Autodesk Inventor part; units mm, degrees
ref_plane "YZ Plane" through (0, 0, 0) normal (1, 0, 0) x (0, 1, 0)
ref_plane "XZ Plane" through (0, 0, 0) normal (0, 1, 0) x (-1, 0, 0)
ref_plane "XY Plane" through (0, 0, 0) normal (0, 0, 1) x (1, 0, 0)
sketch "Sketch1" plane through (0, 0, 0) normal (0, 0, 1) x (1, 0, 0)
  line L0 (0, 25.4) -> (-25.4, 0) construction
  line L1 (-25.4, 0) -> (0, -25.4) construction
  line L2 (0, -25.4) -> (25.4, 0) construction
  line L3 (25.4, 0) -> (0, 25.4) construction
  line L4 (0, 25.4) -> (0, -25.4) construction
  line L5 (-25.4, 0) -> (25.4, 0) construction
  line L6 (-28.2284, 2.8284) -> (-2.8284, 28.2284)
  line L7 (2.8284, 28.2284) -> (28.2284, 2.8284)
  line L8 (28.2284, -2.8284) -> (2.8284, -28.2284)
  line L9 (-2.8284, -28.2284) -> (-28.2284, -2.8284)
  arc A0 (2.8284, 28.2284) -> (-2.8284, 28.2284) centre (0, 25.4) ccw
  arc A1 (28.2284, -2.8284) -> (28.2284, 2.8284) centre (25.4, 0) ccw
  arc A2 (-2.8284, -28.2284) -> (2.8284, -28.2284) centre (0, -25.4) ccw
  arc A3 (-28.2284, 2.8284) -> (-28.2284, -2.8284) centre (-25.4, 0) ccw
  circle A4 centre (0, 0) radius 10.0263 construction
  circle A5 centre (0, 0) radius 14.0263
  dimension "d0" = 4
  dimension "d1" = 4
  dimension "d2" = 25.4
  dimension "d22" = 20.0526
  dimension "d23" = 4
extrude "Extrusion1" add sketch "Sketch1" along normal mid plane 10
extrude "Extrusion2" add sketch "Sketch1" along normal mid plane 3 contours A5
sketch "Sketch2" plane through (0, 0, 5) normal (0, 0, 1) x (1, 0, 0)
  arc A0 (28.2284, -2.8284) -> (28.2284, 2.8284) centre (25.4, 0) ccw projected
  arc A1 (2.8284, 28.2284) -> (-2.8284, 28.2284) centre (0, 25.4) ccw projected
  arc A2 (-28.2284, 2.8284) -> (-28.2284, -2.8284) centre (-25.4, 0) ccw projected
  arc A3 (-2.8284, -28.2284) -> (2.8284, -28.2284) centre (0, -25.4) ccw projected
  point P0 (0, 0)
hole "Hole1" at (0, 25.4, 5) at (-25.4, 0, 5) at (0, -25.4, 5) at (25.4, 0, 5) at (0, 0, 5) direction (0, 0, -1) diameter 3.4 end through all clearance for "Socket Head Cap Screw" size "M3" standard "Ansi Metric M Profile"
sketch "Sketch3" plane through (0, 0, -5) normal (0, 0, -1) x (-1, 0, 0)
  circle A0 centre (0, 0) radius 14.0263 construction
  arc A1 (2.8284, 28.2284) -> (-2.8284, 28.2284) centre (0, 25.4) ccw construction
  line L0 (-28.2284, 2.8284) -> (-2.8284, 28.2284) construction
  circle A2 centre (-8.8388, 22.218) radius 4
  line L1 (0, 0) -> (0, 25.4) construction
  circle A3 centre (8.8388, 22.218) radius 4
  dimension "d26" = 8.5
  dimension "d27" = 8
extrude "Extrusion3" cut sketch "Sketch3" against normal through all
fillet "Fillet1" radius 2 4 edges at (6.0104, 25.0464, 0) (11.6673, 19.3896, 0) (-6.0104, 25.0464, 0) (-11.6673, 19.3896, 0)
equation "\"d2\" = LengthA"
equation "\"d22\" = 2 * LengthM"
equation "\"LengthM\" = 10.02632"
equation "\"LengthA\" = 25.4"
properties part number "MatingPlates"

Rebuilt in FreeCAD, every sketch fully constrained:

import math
import FreeCAD as App
import Part
import Sketcher
from FreeCAD import Vector


def edges_at(feature, points):
    """Names of the edges that pass closest to the given points."""
    edges = feature.Shape.Edges
    near = lambda p: min(range(len(edges)), key=lambda i: edges[i].distToShape(Part.Vertex(*p))[0])
    return sorted({f"Edge{near(p) + 1}" for p in points})

doc = App.newDocument("Part")
body = doc.addObject("PartDesign::Body", "Body")

sketch1 = body.newObject("Sketcher::SketchObject", "Sketch")
sketch1.AttachmentSupport = (doc.getObject("XY_Plane"), [""])
sketch1.MapMode = "FlatFace"
sketch1.addGeometry(Part.LineSegment(Vector(-2.8, 28.2, 0), Vector(-28.2, 2.8, 0)), False)
sketch1.addGeometry(Part.ArcOfCircle(Part.Circle(Vector(-25.4, 0, 0), Vector(0, 0, 1), 4), math.radians(135), math.radians(225)), False)
sketch1.addGeometry(Part.LineSegment(Vector(-28.2, -2.8, 0), Vector(-2.8, -28.2, 0)), False)
sketch1.addGeometry(Part.ArcOfCircle(Part.Circle(Vector(0, -25.4, 0), Vector(0, 0, 1), 4), math.radians(-135), math.radians(-45)), False)
sketch1.addGeometry(Part.LineSegment(Vector(2.8, -28.2, 0), Vector(28.2, -2.8, 0)), False)
sketch1.addGeometry(Part.ArcOfCircle(Part.Circle(Vector(25.4, 0, 0), Vector(0, 0, 1), 4), math.radians(-45), math.radians(45)), False)
sketch1.addGeometry(Part.LineSegment(Vector(28.2, 2.8, 0), Vector(2.8, 28.2, 0)), False)
sketch1.addGeometry(Part.ArcOfCircle(Part.Circle(Vector(0, 25.4, 0), Vector(0, 0, 1), 4), math.radians(45), math.radians(135)), False)
sketch1.addGeometry(Part.Circle(Vector(0, 0, 0), Vector(0, 0, 1), 14), False)
sketch1.addConstraint(Sketcher.Constraint("Tangent", 0, 2, 1, 1))
sketch1.addConstraint(Sketcher.Constraint("Tangent", 1, 2, 2, 1))
sketch1.addConstraint(Sketcher.Constraint("Tangent", 2, 2, 3, 1))
sketch1.addConstraint(Sketcher.Constraint("Tangent", 3, 2, 4, 1))
sketch1.addConstraint(Sketcher.Constraint("Tangent", 4, 2, 5, 1))
sketch1.addConstraint(Sketcher.Constraint("Tangent", 5, 2, 6, 1))
sketch1.addConstraint(Sketcher.Constraint("Tangent", 6, 2, 7, 1))
sketch1.addConstraint(Sketcher.Constraint("Tangent", 7, 2, 0, 1))
sketch1.addConstraint(Sketcher.Constraint("Coincident", 8, 3, -1, 1))
sketch1.addConstraint(Sketcher.Constraint("Equal", 1, 3))
sketch1.addConstraint(Sketcher.Constraint("Equal", 3, 5))
sketch1.addConstraint(Sketcher.Constraint("Equal", 5, 7))
sketch1.addConstraint(Sketcher.Constraint("Symmetric", 1, 3, 5, 3, -1, 1))
sketch1.addConstraint(Sketcher.Constraint("Symmetric", 3, 3, 7, 3, -1, 1))
sketch1.addConstraint(Sketcher.Constraint("Symmetric", 2, 2, 3, 2, -2))
sketch1.addConstraint(Sketcher.Constraint("Perpendicular", 0, 2))
sketch1.addConstraint(Sketcher.Constraint("Radius", 1, 4.0))
sketch1.addConstraint(Sketcher.Constraint("DistanceX", 1, 3, -1, 1, 25.4))
sketch1.addConstraint(Sketcher.Constraint("Diameter", 8, 28.0526))
pad1 = body.newObject("PartDesign::Pad", "Pad")
pad1.Profile = sketch1
pad1.Length = 10
pad1.Midplane = True

sketch2 = body.newObject("Sketcher::SketchObject", "Sketch001")
sketch2.AttachmentSupport = (doc.getObject("XY_Plane"), [""])
sketch2.MapMode = "FlatFace"
sketch2.addGeometry(Part.Circle(Vector(0, 0, 0), Vector(0, 0, 1), 14), False)
sketch2.addConstraint(Sketcher.Constraint("Coincident", 0, 3, -1, 1))
sketch2.addConstraint(Sketcher.Constraint("Diameter", 0, 28.0526))
pad2 = body.newObject("PartDesign::Pad", "Pad001")
pad2.Profile = sketch2
pad2.Length = 3
pad2.Midplane = True

sketch3 = body.newObject("Sketcher::SketchObject", "Sketch002")
sketch3.AttachmentSupport = (doc.getObject("XY_Plane"), [""])
sketch3.MapMode = "FlatFace"
sketch3.AttachmentOffset = App.Placement(Vector(0, 0, 5), App.Rotation())
sketch3.addGeometry(Part.Circle(Vector(0, 25.4, 0), Vector(0, 0, 1), 1.7), False)
sketch3.addGeometry(Part.Circle(Vector(-25.4, 0, 0), Vector(0, 0, 1), 1.7), False)
sketch3.addGeometry(Part.Circle(Vector(0, -25.4, 0), Vector(0, 0, 1), 1.7), False)
sketch3.addGeometry(Part.Circle(Vector(25.4, 0, 0), Vector(0, 0, 1), 1.7), False)
sketch3.addGeometry(Part.Circle(Vector(0, 0, 0), Vector(0, 0, 1), 1.7), False)
sketch3.addConstraint(Sketcher.Constraint("Coincident", 4, 3, -1, 1))
sketch3.addConstraint(Sketcher.Constraint("Equal", 0, 1))
sketch3.addConstraint(Sketcher.Constraint("Equal", 1, 2))
sketch3.addConstraint(Sketcher.Constraint("Equal", 2, 3))
sketch3.addConstraint(Sketcher.Constraint("Equal", 3, 4))
sketch3.addConstraint(Sketcher.Constraint("Symmetric", 0, 3, 2, 3, -1, 1))
sketch3.addConstraint(Sketcher.Constraint("Symmetric", 1, 3, 3, 3, -1, 1))
sketch3.addConstraint(Sketcher.Constraint("PointOnObject", 0, 3, -2))
sketch3.addConstraint(Sketcher.Constraint("PointOnObject", 1, 3, -1))
sketch3.addConstraint(Sketcher.Constraint("Diameter", 0, 3.4))
sketch3.addConstraint(Sketcher.Constraint("DistanceY", -1, 1, 0, 3, 25.4))
sketch3.addConstraint(Sketcher.Constraint("DistanceX", 1, 3, -1, 1, 25.4))
doc.recompute()
hole = body.newObject("PartDesign::Hole", "Hole")
hole.Profile = sketch3
hole.ThreadType = "None"
hole.Diameter = 3.4
hole.DepthType = "ThroughAll"

sketch4 = body.newObject("Sketcher::SketchObject", "Sketch003")
sketch4.AttachmentSupport = (doc.getObject("XY_Plane"), [""])
sketch4.MapMode = "FlatFace"
sketch4.AttachmentOffset = App.Placement(Vector(0, 0, -5), App.Rotation())
sketch4.addGeometry(Part.Circle(Vector(8.8, 22.2, 0), Vector(0, 0, 1), 4), False)
sketch4.addGeometry(Part.Circle(Vector(-8.8, 22.2, 0), Vector(0, 0, 1), 4), False)
sketch4.addConstraint(Sketcher.Constraint("Equal", 0, 1))
sketch4.addConstraint(Sketcher.Constraint("Symmetric", 0, 3, 1, 3, -2))
sketch4.addConstraint(Sketcher.Constraint("Diameter", 0, 8.0))
sketch4.addConstraint(Sketcher.Constraint("DistanceY", -1, 1, 0, 3, 22.218))
sketch4.addConstraint(Sketcher.Constraint("DistanceX", -1, 1, 0, 3, 8.8388))
pocket1 = body.newObject("PartDesign::Pocket", "Pocket")
pocket1.Profile = sketch4
pocket1.Type = "ThroughAll"
pocket1.Reversed = True
doc.recompute()

fillet = body.newObject("PartDesign::Fillet", "Fillet")
fillet.Base = (pocket1, edges_at(pocket1, [
    (6.01, 25.046, 0),
    (11.667, 19.39, 0),
    (-6.01, 25.046, 0),
    (-11.667, 19.39, 0),
]))
fillet.Radius = 2

doc.recompute()
